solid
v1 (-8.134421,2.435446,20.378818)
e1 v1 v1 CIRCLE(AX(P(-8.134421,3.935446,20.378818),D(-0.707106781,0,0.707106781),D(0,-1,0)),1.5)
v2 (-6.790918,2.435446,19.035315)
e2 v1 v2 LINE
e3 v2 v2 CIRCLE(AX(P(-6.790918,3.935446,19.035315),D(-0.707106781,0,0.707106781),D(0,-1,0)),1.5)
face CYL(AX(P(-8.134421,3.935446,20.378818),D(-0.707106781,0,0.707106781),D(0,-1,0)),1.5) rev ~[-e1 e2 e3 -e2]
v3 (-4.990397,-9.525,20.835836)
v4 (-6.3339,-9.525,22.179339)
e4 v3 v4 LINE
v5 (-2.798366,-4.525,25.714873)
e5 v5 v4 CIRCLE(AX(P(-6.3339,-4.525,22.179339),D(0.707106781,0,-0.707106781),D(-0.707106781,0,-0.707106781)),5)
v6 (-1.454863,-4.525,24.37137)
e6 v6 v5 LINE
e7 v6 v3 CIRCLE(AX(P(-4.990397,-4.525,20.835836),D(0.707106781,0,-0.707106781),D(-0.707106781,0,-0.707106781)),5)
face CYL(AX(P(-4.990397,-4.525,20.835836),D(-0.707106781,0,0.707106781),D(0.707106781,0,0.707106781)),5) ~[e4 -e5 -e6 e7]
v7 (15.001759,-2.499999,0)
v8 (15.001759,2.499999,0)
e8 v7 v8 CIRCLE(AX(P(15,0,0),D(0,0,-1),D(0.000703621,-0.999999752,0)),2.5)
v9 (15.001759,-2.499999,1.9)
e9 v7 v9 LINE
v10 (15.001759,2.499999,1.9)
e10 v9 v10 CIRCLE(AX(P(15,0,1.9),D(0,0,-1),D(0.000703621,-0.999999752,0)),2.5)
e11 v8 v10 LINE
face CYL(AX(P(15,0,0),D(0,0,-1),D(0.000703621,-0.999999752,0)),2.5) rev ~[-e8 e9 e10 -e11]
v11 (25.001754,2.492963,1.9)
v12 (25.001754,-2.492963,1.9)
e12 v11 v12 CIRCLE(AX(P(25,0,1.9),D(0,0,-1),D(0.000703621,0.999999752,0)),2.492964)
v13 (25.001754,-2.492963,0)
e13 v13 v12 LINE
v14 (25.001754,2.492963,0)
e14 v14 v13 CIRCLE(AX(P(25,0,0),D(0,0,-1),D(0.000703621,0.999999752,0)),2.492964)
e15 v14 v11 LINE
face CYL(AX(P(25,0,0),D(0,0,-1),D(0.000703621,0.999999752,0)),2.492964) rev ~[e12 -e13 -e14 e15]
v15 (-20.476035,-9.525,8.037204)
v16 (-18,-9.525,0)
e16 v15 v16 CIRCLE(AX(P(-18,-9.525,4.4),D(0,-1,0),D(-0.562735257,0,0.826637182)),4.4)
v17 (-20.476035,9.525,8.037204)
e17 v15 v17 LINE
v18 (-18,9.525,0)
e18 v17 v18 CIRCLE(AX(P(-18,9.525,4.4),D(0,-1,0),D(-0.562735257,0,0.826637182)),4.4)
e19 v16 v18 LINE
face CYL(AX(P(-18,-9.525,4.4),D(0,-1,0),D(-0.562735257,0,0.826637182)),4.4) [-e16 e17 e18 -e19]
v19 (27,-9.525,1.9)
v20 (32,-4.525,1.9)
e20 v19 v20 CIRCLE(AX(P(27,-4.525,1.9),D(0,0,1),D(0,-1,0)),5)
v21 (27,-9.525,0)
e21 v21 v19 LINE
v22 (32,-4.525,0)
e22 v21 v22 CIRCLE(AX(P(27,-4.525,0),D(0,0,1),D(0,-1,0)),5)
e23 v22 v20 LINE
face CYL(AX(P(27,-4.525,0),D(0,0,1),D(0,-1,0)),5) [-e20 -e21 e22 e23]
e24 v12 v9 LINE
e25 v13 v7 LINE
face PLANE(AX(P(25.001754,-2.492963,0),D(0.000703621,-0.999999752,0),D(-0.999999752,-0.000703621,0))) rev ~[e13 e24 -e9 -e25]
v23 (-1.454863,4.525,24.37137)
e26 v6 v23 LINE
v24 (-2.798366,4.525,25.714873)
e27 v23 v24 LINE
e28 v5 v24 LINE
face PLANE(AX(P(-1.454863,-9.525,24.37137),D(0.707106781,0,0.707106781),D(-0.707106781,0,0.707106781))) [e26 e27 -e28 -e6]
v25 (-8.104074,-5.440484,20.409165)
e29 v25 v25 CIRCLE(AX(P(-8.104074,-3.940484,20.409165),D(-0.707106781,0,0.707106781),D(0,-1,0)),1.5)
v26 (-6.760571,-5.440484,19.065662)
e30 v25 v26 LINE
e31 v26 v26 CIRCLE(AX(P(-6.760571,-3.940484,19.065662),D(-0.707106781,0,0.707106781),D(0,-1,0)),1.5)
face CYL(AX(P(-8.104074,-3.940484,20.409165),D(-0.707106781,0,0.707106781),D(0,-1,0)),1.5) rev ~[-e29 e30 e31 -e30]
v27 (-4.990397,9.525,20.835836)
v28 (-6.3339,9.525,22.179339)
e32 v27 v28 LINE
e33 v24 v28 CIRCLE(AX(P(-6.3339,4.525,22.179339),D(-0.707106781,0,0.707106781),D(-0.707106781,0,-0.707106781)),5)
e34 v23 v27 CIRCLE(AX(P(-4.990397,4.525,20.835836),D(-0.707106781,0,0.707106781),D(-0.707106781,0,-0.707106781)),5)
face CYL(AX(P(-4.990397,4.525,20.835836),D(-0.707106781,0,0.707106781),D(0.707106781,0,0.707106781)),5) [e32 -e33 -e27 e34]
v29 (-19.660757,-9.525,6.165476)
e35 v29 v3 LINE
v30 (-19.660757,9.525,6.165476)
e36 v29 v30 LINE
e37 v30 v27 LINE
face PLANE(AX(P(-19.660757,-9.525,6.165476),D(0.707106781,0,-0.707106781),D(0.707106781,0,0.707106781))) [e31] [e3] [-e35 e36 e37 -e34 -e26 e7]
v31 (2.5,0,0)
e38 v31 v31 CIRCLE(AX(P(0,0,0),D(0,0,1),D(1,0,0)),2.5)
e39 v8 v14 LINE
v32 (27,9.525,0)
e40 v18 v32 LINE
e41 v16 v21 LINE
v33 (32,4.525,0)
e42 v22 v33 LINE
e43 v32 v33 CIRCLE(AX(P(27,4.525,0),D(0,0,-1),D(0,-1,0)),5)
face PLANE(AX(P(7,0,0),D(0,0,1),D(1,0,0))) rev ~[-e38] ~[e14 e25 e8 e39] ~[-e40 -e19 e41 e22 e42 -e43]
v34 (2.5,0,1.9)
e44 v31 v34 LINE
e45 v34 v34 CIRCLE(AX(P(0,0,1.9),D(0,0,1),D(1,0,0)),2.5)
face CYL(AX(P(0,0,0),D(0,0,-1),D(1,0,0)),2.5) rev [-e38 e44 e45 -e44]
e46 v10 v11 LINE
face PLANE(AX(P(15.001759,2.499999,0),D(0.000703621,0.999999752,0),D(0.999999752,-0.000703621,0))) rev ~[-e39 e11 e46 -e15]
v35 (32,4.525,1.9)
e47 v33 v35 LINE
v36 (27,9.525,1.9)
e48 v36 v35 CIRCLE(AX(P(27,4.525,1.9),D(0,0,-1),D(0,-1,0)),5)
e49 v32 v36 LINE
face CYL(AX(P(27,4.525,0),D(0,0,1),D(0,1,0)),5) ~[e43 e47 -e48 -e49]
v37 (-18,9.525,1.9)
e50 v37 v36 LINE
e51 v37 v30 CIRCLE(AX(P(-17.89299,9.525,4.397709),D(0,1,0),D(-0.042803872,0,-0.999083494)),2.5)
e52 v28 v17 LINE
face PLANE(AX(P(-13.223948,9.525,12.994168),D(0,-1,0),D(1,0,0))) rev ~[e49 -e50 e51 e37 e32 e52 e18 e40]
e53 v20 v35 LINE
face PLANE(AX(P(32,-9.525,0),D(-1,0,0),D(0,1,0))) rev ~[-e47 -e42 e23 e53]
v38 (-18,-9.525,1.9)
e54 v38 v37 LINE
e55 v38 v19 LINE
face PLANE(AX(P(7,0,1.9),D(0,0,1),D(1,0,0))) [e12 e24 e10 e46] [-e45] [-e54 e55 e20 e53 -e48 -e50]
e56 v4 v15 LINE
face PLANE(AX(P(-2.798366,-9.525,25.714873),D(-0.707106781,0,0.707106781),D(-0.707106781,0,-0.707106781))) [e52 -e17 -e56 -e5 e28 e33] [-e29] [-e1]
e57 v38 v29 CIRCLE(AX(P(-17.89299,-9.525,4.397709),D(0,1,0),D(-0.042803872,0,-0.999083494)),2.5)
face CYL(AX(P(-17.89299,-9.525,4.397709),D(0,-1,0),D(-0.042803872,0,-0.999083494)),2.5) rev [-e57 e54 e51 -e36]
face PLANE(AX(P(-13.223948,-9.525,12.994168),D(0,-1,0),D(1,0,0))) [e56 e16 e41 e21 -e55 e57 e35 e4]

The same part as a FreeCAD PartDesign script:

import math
import FreeCAD as App
import Part
import Sketcher

V = App.Vector
Q = App.Units.Quantity


def edges_at(feature, points):
    """Names of the edges that pass closest to the given points."""
    edges = feature.Shape.Edges
    near = lambda p: min(range(len(edges)), key=lambda i: edges[i].distToShape(Part.Vertex(*p))[0])
    return sorted({f"Edge{near(p) + 1}" for p in points})


def add_polygon(sketch, points):
    """Adds a closed chain of lines whose ends are joined by coincident constraints."""
    first, n = sketch.GeometryCount, len(points)
    for a, b in zip(points, points[1:] + points[:1]):
        sketch.addGeometry(Part.LineSegment(App.Vector(*a, 0), App.Vector(*b, 0)), False)
    for i in range(n):
        sketch.addConstraint(Sketcher.Constraint("Coincident", first + i, 2, first + (i + 1) % n, 1))

doc = App.newDocument("Part")
body = doc.addObject("PartDesign::Body", "Body")

# Sketch on XY plane
sketch1 = body.newObject("Sketcher::SketchObject", "Sketch")
sketch1.AttachmentSupport = (doc.getObject("XY_Plane"), [""])
sketch1.MapMode = "FlatFace"
add_polygon(sketch1, [(-18, 9.5), (-18, -9.5), (32, -9.5), (32, 9.5)])  # lines 0-3
sketch1.addGeometry(Part.Circle(V(0, 0, 0), V(0, 0, 1), 2.5), False)  # 4
sketch1.addGeometry(Part.LineSegment(V(15, 2.5, 0), V(25, 2.5, 0)), False)  # 5
sketch1.addGeometry(Part.ArcOfCircle(Part.Circle(V(25, 0, 0), V(0, 0, 1), 2.5), math.radians(-90), math.radians(90)), False)  # 6
sketch1.addGeometry(Part.LineSegment(V(25, -2.5, 0), V(15, -2.5, 0)), False)  # 7
sketch1.addGeometry(Part.ArcOfCircle(Part.Circle(V(15, 0, 0), V(0, 0, 1), 2.5), math.radians(90), math.radians(270)), False)  # 8
sketch1.addConstraint(Sketcher.Constraint("Tangent", 5, 2, 6, 2))
sketch1.addConstraint(Sketcher.Constraint("Tangent", 6, 1, 7, 1))
sketch1.addConstraint(Sketcher.Constraint("Tangent", 7, 2, 8, 2))
sketch1.addConstraint(Sketcher.Constraint("Tangent", 8, 1, 5, 1))
sketch1.addConstraint(Sketcher.Constraint("Vertical", 0))
sketch1.addConstraint(Sketcher.Constraint("Horizontal", 1))
sketch1.addConstraint(Sketcher.Constraint("Vertical", 2))
sketch1.addConstraint(Sketcher.Constraint("Horizontal", 3))
sketch1.addConstraint(Sketcher.Constraint("Coincident", 4, 3, -1, 1))
sketch1.addConstraint(Sketcher.Constraint("Equal", 4, 8))
sketch1.addConstraint(Sketcher.Constraint("Symmetric", 5, 2, 6, 1, -1))
sketch1.addConstraint(Sketcher.Constraint("Diameter", 4, Q("5 mm")))
sketch1.addConstraint(Sketcher.Constraint("DistanceX", 1, 1, 1, 2, Q("50 mm")))
sketch1.addConstraint(Sketcher.Constraint("DistanceX", -1, 1, 6, 3, Q("25 mm")))
sketch1.addConstraint(Sketcher.Constraint("DistanceX", -1, 1, 8, 3, Q("15 mm")))
sketch1.addConstraint(Sketcher.Constraint("DistanceX", 0, 2, -1, 1, Q("18 mm")))
sketch1.addConstraint(Sketcher.Constraint("DistanceY", 0, 2, 0, 1, Q("19.05 mm")))
sketch1.addConstraint(Sketcher.Constraint("DistanceY", 0, 2, -1, 1, Q("9.525 mm")))
sketch1.addConstraint(Sketcher.Constraint("Radius", 6, Q("2.492964 mm")))
pad1 = body.newObject("PartDesign::Pad", "Pad")
pad1.Profile = sketch1
pad1.Length = 1.9
doc.recompute()

fillet = body.newObject("PartDesign::Fillet", "Fillet")
fillet.Base = (pad1, edges_at(pad1, [(32, -9.525, 0.95), (32, 9.525, 0.95)]))
fillet.Radius = 5

# Sketch on XZ plane
sketch2 = body.newObject("Sketcher::SketchObject", "Sketch001")
sketch2.AttachmentSupport = (doc.getObject("XZ_Plane"), [""])
sketch2.MapMode = "FlatFace"
sketch2.AttachmentOffset = App.Placement(V(0, 0, 9.525), App.Rotation())
sketch2.addGeometry(Part.LineSegment(V(-2.8, 25.7, 0), V(-20.5, 8, 0)), False)
sketch2.addGeometry(Part.ArcOfCircle(Part.Circle(V(-18, 4.4, 0), V(0, 0, 1), 4.4), math.radians(124), math.radians(270)), False)
sketch2.addGeometry(Part.LineSegment(V(-18, 0, 0), V(-18, 1.9, 0)), False)
sketch2.addGeometry(Part.ArcOfCircle(Part.Circle(V(-17.9, 4.4, 0), V(0, 0, 1), 2.5), math.radians(135), math.radians(268)), False)
sketch2.addGeometry(Part.LineSegment(V(-19.7, 6.2, 0), V(-1.5, 24.4, 0)), False)
sketch2.addGeometry(Part.LineSegment(V(-1.5, 24.4, 0), V(-2.8, 25.7, 0)), False)
sketch2.addConstraint(Sketcher.Constraint("Coincident", 0, 2, 1, 1))
sketch2.addConstraint(Sketcher.Constraint("Coincident", 1, 2, 2, 1))
sketch2.addConstraint(Sketcher.Constraint("Coincident", 2, 2, 3, 2))
sketch2.addConstraint(Sketcher.Constraint("Tangent", 3, 1, 4, 1))
sketch2.addConstraint(Sketcher.Constraint("Coincident", 4, 2, 5, 1))
sketch2.addConstraint(Sketcher.Constraint("Coincident", 5, 2, 0, 1))
sketch2.addConstraint(Sketcher.Constraint("Vertical", 2))
sketch2.addConstraint(Sketcher.Constraint("PointOnObject", 1, 2, -1))
sketch2.addConstraint(Sketcher.Constraint("Parallel", 0, 4))
sketch2.addConstraint(Sketcher.Constraint("Perpendicular", 4, 5))
sketch2.addConstraint(Sketcher.Constraint("Radius", 1, Q("4.4 mm")))
sketch2.addConstraint(Sketcher.Constraint("Radius", 3, Q("2.5 mm")))
sketch2.addConstraint(Sketcher.Constraint("Angle", 0, Q("-135 deg")))
sketch2.addConstraint(Sketcher.Constraint("Distance", 0, Q("25 mm")))
sketch2.addConstraint(Sketcher.Constraint("DistanceY", 2, 1, 2, 2, Q("1.9 mm")))
sketch2.addConstraint(Sketcher.Constraint("DistanceX", 1, 3, -1, 1, Q("18 mm")))
sketch2.addConstraint(Sketcher.Constraint("DistanceX", 1, 2, -1, 1, Q("18 mm")))
sketch2.addConstraint(Sketcher.Constraint("Distance", 5, Q("1.9 mm")))
sketch2.addConstraint(Sketcher.Constraint("DistanceX", 3, 3, -1, 1, Q("17.89299 mm")))
pad2 = body.newObject("PartDesign::Pad", "Pad001")
pad2.Profile = sketch2
pad2.Length = 19.05
pad2.Reversed = True
doc.recompute()

fillet2 = body.newObject("PartDesign::Fillet", "Fillet001")
fillet2.Base = (pad2, edges_at(pad2, [(-2.127, -9.525, 25.043), (-2.127, 9.525, 25.043)]))
fillet2.Radius = 5

# Sketch on an angled plane
sketch3 = body.newObject("Sketcher::SketchObject", "Sketch002")
sketch3.Placement = App.Placement(V(-14.256619, 0, 14.256619), App.Rotation(V(0, -1, 0), V(0.707106781, 0, 0.707106781), V(-0.707106781, 0, 0.707106781), "ZXY"))
sketch3.addGeometry(Part.Circle(V(-3.9, 8.7, 0), V(0, 0, 1), 1.5), False)
sketch3.addGeometry(Part.Circle(V(3.9, 8.7, 0), V(0, 0, 1), 1.5), False)
sketch3.addConstraint(Sketcher.Constraint("Equal", 0, 1))
sketch3.addConstraint(Sketcher.Constraint("Diameter", 0, Q("3 mm")))
sketch3.addConstraint(Sketcher.Constraint("DistanceX", 0, 3, 1, 3, Q("7.87593 mm")))
sketch3.addConstraint(Sketcher.Constraint("DistanceX", 0, 3, -1, 1, Q("3.935446 mm")))
sketch3.addConstraint(Sketcher.Constraint("DistanceY", -1, 1, 0, 3, Q("8.658096 mm")))
sketch3.addConstraint(Sketcher.Constraint("DistanceY", -1, 1, 1, 3, Q("8.701013 mm")))
pocket1 = body.newObject("PartDesign::Pocket", "Pocket")
pocket1.Profile = sketch3
pocket1.Length = 5

doc.recompute()
